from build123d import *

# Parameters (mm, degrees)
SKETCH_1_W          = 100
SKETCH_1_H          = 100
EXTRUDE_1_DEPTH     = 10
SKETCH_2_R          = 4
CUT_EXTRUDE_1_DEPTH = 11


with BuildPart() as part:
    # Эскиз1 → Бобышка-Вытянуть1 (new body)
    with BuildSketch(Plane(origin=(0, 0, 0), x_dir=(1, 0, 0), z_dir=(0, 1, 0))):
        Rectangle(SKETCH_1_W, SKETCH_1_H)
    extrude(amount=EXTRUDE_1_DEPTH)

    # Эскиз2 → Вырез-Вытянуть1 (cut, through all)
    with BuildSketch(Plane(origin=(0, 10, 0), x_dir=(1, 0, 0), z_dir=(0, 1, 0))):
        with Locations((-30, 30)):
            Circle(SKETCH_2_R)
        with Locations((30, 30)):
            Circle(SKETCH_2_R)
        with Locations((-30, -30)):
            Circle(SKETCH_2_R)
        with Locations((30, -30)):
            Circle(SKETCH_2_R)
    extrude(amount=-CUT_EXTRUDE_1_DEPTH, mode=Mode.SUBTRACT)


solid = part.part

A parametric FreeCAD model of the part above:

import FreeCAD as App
import Part
import Sketcher

V = App.Vector
Q = App.Units.Quantity

doc = App.newDocument("Part")
body = doc.addObject("PartDesign::Body", "Body")

# Sketch on XZ plane
sketch1 = body.newObject("Sketcher::SketchObject", "Sketch")
sketch1.AttachmentSupport = (doc.getObject("XZ_Plane"), [""])
sketch1.MapMode = "FlatFace"
sketch1.addGeometry(Part.LineSegment(V(-50, -50, 0), V(-50, 50, 0)), False)
sketch1.addGeometry(Part.LineSegment(V(-50, 50, 0), V(50, 50, 0)), False)
sketch1.addGeometry(Part.LineSegment(V(50, 50, 0), V(50, -50, 0)), False)
sketch1.addGeometry(Part.LineSegment(V(50, -50, 0), V(-50, -50, 0)), False)
sketch1.addConstraint(Sketcher.Constraint("Coincident", 0, 2, 1, 1))
sketch1.addConstraint(Sketcher.Constraint("Coincident", 1, 2, 2, 1))
sketch1.addConstraint(Sketcher.Constraint("Coincident", 2, 2, 3, 1))
sketch1.addConstraint(Sketcher.Constraint("Coincident", 3, 2, 0, 1))
sketch1.addConstraint(Sketcher.Constraint("Vertical", 0))
sketch1.addConstraint(Sketcher.Constraint("Horizontal", 1))
sketch1.addConstraint(Sketcher.Constraint("Vertical", 2))
sketch1.addConstraint(Sketcher.Constraint("Horizontal", 3))
sketch1.addConstraint(Sketcher.Constraint("Symmetric", 0, 2, 2, 2, -1, 1))
sketch1.addConstraint(Sketcher.Constraint("Equal", 3, 0))
sketch1.addConstraint(Sketcher.Constraint("DistanceX", 1, 1, 1, 2, Q("100 mm")))
pad1 = body.newObject("PartDesign::Pad", "Pad")
pad1.Profile = sketch1
pad1.Length = 10
pad1.Reversed = True

# Sketch on XZ plane
sketch2 = body.newObject("Sketcher::SketchObject", "Sketch001")
sketch2.AttachmentSupport = (doc.getObject("XZ_Plane"), [""])
sketch2.MapMode = "FlatFace"
sketch2.AttachmentOffset = App.Placement(V(0, 0, -10), App.Rotation())
sketch2.addGeometry(Part.Circle(V(-30, -30, 0), V(0, 0, 1), 4), False)
sketch2.addGeometry(Part.Circle(V(30, -30, 0), V(0, 0, 1), 4), False)
sketch2.addGeometry(Part.Circle(V(-30, 30, 0), V(0, 0, 1), 4), False)
sketch2.addGeometry(Part.Circle(V(30, 30, 0), V(0, 0, 1), 4), False)
sketch2.addConstraint(Sketcher.Constraint("Equal", 0, 1))
sketch2.addConstraint(Sketcher.Constraint("Equal", 1, 2))
sketch2.addConstraint(Sketcher.Constraint("Equal", 2, 3))
sketch2.addConstraint(Sketcher.Constraint("Symmetric", 1, 3, 2, 3, -1, 1))
sketch2.addConstraint(Sketcher.Constraint("Symmetric", 0, 3, 3, 3, -1, 1))
sketch2.addConstraint(Sketcher.Constraint("Symmetric", 0, 3, 1, 3, -2))
sketch2.addConstraint(Sketcher.Constraint("Diameter", 0, Q("8 mm")))
sketch2.addConstraint(Sketcher.Constraint("DistanceX", 0, 3, -1, 1, Q("30 mm")))
sketch2.addConstraint(Sketcher.Constraint("DistanceY", 0, 3, -1, 1, Q("30 mm")))
pocket1 = body.newObject("PartDesign::Pocket", "Pocket")
pocket1.Profile = sketch2
pocket1.Type = "ThroughAll"
pocket1.Reversed = True

doc.recompute()
